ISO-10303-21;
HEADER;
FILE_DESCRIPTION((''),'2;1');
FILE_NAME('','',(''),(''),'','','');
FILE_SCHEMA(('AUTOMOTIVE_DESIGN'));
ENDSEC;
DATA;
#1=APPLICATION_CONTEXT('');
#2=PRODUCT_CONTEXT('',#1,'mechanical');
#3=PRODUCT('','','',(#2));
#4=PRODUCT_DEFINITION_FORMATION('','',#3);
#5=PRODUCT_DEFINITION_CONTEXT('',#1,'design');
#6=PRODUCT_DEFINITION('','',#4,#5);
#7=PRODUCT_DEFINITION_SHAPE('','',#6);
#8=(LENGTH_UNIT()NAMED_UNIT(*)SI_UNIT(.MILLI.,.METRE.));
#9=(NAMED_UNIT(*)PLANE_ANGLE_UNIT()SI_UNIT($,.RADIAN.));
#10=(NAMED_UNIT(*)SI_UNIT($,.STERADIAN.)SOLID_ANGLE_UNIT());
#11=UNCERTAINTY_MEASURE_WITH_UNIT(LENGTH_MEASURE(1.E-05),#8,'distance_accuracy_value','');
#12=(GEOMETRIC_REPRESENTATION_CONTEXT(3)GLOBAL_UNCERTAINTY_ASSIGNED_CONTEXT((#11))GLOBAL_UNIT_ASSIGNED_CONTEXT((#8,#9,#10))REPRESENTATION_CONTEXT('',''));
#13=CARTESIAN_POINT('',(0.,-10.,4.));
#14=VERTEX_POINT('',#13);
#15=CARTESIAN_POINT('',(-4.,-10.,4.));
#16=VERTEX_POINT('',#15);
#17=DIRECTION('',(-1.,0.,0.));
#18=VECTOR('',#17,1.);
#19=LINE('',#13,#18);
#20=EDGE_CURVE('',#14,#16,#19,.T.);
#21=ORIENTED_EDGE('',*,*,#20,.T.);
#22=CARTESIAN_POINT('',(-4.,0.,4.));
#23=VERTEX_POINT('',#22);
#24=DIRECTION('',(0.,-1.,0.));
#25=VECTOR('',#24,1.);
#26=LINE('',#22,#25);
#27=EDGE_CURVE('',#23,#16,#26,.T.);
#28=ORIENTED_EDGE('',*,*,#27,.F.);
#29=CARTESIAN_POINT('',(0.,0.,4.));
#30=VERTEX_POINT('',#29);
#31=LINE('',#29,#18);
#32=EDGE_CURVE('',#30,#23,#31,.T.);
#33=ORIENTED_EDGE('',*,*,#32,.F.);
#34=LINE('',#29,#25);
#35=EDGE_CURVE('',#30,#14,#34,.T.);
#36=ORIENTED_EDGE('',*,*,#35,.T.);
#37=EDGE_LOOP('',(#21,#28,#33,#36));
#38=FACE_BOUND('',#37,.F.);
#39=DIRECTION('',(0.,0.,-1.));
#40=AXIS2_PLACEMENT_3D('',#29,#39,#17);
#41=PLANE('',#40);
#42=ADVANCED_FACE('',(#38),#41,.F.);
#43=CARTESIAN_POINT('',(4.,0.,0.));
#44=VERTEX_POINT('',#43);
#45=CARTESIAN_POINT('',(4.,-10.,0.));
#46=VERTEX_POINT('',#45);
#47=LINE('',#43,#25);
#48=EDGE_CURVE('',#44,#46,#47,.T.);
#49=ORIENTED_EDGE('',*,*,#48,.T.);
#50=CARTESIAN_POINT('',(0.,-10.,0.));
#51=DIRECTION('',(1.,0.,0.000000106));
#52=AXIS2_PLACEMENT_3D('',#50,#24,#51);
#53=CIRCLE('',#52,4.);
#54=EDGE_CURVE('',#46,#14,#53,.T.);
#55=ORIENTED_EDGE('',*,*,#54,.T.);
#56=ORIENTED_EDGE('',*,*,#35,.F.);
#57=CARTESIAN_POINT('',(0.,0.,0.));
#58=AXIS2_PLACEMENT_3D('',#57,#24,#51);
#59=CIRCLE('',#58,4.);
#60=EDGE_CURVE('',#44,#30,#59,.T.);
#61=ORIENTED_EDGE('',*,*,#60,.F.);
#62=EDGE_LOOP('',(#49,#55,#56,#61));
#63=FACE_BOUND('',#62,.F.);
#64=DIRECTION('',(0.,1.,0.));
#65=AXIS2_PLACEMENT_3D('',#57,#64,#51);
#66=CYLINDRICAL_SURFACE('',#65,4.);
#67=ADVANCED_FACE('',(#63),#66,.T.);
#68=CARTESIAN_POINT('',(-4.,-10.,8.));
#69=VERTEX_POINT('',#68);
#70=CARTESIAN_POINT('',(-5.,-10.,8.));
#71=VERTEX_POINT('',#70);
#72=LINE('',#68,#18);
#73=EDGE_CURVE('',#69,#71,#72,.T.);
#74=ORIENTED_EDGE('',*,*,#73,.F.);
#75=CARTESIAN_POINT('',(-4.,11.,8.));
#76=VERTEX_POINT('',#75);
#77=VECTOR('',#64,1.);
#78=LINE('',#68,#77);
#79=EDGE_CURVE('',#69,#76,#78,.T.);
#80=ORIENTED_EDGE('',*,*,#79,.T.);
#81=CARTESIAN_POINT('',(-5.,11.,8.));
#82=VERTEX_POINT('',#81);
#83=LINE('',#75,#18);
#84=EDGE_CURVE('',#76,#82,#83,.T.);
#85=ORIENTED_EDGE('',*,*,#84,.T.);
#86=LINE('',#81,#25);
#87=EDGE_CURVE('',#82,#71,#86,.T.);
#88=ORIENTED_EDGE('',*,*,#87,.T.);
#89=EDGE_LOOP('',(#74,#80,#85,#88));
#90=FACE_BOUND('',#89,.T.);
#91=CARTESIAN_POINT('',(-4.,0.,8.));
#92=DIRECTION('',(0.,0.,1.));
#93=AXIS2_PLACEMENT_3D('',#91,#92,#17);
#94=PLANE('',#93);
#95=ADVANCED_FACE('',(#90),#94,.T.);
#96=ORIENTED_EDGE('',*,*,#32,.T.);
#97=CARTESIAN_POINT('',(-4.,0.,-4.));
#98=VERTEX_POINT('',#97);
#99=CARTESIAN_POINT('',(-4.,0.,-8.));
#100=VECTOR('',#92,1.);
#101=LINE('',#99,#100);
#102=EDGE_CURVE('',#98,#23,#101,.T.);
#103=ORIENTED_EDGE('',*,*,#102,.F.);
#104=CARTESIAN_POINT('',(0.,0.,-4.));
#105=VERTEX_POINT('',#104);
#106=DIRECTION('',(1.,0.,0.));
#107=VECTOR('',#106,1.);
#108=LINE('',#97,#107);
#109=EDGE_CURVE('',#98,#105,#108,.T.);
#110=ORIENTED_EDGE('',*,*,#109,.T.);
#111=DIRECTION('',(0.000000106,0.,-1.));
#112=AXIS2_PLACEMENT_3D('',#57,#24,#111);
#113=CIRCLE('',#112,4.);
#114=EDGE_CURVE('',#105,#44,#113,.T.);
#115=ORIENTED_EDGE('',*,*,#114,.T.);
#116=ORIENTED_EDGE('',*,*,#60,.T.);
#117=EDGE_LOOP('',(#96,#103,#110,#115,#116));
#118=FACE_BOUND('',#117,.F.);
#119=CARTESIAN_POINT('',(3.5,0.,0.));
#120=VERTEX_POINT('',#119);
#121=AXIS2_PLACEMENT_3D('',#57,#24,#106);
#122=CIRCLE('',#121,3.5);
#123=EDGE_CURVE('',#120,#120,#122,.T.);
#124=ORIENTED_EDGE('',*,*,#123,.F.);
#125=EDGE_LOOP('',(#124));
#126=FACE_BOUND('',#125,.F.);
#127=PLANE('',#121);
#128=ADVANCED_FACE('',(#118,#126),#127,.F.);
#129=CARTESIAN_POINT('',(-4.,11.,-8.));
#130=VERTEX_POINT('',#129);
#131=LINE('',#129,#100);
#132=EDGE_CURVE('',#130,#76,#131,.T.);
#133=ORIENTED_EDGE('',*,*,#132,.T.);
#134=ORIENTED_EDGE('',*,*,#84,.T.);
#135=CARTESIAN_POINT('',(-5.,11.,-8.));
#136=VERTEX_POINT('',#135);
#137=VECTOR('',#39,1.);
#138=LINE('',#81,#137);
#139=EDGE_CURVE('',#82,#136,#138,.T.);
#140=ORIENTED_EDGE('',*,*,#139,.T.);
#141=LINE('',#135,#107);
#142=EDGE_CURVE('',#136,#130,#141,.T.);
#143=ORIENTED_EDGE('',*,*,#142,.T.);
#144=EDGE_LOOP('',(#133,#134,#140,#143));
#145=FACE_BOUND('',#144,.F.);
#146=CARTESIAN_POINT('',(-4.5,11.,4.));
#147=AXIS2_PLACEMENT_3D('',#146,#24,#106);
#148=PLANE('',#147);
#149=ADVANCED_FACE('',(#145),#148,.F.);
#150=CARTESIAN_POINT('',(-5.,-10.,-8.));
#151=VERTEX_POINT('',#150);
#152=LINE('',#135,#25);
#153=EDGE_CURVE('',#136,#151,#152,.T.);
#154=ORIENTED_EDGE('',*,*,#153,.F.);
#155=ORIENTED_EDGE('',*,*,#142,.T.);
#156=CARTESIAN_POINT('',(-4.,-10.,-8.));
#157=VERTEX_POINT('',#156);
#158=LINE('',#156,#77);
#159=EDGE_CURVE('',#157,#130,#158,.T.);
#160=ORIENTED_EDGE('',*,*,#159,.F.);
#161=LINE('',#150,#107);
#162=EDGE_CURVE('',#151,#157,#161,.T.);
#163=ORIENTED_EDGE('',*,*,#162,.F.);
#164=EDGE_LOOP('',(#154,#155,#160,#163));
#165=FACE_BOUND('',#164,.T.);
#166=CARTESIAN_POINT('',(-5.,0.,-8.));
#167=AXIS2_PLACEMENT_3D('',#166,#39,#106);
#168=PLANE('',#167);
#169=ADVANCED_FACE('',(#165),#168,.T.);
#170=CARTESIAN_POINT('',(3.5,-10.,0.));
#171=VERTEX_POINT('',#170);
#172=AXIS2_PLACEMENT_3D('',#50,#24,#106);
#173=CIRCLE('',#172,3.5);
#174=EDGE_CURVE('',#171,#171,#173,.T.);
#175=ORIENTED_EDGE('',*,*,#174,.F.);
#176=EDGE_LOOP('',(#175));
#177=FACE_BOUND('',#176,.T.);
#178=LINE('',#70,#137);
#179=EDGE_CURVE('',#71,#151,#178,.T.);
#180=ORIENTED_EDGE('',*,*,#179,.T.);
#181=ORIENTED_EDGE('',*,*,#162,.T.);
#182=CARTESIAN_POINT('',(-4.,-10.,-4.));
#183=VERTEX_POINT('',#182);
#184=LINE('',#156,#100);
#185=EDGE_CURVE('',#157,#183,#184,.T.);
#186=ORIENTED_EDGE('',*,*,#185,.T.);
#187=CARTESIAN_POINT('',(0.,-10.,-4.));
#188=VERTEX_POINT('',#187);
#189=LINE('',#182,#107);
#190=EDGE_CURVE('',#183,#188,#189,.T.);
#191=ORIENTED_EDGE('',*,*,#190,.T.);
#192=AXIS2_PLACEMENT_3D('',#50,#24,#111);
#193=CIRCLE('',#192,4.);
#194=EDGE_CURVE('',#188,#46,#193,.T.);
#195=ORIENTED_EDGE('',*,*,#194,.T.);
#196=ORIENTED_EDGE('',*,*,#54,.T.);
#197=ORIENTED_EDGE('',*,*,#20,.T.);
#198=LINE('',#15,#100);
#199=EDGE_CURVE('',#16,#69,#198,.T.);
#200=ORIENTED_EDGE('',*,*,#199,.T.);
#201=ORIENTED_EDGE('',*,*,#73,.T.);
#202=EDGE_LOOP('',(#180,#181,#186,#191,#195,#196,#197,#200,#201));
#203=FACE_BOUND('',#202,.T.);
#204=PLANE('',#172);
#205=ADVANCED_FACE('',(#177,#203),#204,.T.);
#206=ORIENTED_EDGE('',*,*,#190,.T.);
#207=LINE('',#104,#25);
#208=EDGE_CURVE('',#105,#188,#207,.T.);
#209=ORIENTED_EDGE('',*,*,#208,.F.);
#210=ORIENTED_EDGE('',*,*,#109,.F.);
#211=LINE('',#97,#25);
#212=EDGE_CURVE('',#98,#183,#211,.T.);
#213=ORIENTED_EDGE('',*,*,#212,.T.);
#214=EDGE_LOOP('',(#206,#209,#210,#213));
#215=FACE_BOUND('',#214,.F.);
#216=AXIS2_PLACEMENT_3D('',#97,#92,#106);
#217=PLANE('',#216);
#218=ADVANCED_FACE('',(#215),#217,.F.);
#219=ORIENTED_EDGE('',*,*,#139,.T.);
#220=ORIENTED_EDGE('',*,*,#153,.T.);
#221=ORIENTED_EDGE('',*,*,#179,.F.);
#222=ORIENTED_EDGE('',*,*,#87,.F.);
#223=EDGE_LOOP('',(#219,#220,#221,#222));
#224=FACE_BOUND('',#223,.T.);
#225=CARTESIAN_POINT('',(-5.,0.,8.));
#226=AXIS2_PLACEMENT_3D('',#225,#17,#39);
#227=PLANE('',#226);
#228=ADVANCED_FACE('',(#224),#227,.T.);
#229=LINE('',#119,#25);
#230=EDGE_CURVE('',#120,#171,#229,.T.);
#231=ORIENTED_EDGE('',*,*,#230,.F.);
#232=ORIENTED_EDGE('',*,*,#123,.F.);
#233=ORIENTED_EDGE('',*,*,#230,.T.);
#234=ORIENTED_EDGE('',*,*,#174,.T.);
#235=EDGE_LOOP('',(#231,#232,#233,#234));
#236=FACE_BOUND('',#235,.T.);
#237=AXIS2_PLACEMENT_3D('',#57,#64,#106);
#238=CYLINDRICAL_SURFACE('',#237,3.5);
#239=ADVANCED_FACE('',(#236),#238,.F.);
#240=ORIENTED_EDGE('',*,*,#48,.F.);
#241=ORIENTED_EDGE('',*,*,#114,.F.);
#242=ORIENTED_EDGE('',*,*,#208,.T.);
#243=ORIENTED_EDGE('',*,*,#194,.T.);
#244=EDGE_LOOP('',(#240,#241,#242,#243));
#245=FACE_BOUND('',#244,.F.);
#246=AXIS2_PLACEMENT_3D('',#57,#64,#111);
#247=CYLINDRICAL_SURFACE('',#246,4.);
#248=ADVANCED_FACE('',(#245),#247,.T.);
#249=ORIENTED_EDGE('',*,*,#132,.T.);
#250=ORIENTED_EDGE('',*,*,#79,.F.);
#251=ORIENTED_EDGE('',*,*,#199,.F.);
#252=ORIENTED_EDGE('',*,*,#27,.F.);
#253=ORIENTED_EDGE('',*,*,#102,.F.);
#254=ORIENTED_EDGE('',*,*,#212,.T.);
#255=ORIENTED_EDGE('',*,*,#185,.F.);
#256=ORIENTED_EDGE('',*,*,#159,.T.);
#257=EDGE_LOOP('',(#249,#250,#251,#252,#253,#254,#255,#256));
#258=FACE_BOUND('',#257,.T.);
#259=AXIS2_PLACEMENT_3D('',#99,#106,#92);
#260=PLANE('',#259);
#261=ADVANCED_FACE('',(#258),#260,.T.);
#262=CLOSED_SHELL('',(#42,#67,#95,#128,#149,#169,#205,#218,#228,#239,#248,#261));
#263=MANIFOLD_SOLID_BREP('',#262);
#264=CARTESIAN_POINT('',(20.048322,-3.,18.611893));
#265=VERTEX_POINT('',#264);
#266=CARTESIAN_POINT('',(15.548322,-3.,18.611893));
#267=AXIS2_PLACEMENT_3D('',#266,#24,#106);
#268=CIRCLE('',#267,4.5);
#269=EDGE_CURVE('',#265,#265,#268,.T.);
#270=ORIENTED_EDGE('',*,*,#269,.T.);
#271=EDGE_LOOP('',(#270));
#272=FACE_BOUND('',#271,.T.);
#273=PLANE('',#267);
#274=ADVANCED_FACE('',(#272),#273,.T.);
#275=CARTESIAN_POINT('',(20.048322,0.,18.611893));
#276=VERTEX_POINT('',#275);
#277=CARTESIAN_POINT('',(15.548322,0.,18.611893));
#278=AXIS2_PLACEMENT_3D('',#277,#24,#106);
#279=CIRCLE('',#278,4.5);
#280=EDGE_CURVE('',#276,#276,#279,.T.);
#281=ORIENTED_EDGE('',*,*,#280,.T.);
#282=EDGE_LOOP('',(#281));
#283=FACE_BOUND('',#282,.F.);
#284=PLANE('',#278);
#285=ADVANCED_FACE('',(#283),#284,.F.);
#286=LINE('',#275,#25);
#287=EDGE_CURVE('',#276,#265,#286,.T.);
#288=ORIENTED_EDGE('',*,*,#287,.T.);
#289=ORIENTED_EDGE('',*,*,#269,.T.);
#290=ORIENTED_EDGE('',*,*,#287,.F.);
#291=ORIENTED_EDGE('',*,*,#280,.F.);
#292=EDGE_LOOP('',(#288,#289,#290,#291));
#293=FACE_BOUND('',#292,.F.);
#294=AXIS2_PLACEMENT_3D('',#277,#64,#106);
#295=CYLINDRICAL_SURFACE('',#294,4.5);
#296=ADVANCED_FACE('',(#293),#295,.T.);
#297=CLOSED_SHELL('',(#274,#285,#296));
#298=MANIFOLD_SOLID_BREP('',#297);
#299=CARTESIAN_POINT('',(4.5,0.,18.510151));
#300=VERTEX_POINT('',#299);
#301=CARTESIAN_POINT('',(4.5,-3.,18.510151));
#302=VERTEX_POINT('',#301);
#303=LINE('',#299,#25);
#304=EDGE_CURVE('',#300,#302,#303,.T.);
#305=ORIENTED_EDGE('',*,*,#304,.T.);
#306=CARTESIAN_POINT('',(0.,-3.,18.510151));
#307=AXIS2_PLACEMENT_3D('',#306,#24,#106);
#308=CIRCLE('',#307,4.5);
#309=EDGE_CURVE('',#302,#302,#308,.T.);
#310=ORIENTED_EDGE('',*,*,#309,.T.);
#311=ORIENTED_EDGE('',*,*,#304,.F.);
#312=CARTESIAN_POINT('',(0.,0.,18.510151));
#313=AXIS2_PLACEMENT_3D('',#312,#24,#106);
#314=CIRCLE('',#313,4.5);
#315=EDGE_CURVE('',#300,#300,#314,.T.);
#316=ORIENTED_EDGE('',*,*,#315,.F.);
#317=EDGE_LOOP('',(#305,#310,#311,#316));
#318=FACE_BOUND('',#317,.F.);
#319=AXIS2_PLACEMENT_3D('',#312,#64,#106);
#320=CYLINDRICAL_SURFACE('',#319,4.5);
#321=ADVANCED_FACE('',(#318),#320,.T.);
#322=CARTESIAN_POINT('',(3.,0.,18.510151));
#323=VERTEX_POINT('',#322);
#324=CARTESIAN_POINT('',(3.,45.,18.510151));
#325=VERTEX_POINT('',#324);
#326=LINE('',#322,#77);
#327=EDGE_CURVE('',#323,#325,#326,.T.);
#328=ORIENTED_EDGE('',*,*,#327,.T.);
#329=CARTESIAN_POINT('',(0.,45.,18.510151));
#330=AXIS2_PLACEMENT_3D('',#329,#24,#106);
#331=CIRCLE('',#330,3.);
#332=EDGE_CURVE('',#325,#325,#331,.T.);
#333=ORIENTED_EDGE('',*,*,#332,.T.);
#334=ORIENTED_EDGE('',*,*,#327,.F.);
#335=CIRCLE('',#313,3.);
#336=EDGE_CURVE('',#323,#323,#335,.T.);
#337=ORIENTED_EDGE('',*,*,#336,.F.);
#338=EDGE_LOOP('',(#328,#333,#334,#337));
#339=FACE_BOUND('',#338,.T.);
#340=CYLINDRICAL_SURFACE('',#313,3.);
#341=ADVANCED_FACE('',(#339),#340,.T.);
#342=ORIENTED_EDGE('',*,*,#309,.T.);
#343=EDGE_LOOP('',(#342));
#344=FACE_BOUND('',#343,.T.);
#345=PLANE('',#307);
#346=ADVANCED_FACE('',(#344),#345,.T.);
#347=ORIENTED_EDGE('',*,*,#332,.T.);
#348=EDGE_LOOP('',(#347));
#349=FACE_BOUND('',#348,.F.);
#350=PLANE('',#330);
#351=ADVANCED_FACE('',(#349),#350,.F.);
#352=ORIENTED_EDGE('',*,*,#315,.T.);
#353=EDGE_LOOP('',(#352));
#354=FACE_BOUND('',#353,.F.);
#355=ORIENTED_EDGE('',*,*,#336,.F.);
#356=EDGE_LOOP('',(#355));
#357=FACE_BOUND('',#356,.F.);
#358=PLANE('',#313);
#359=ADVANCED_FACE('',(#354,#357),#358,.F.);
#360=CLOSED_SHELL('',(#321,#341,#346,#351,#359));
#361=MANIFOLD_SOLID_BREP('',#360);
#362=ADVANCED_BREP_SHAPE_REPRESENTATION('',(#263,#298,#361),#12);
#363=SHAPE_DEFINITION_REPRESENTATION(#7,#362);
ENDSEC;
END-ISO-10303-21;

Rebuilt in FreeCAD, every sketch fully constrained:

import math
import FreeCAD as App
import Part
import Sketcher
from FreeCAD import Vector
Q = App.Units.Quantity

doc = App.newDocument("Part")
body = doc.addObject("PartDesign::Body", "Body")

# Sketch on XZ plane
sketch1 = body.newObject("Sketcher::SketchObject", "Sketch")
sketch1.AttachmentSupport = (doc.getObject("XZ_Plane"), [""])
sketch1.MapMode = "FlatFace"
sketch1.addGeometry([
    Part.ArcOfCircle(Part.Circle(Vector(0, 0, 0), Vector(0, 0, 1), 4), math.radians(-89.999994), math.radians(-0.000006)),  # 0
    Part.ArcOfCircle(Part.Circle(Vector(0, 0, 0), Vector(0, 0, 1), 4), math.radians(0.000006), math.radians(89.999994)),  # 1
    Part.LineSegment(Vector(0, 4, 0), Vector(-4, 4, 0)),  # 2
    Part.LineSegment(Vector(-4, 4, 0), Vector(-4, 8, 0)),  # 3
    Part.LineSegment(Vector(-4, 8, 0), Vector(-5, 8, 0)),  # 4
    Part.LineSegment(Vector(-5, 8, 0), Vector(-5, -8, 0)),  # 5
    Part.LineSegment(Vector(-5, -8, 0), Vector(-4, -8, 0)),  # 6
    Part.LineSegment(Vector(-4, -8, 0), Vector(-4, -4, 0)),  # 7
    Part.LineSegment(Vector(-4, -4, 0), Vector(0, -4, 0)),  # 8
    Part.Circle(Vector(0, 0, 0), Vector(0, 0, 1), 3.5),  # 9
], False)
sketch1.addConstraint([
    Sketcher.Constraint("Tangent", 0, 2, 1, 1),
    Sketcher.Constraint("Tangent", 1, 2, 2, 1),
    Sketcher.Constraint("Coincident", 2, 2, 3, 1),
    Sketcher.Constraint("Coincident", 3, 2, 4, 1),
    Sketcher.Constraint("Coincident", 4, 2, 5, 1),
    Sketcher.Constraint("Coincident", 5, 2, 6, 1),
    Sketcher.Constraint("Coincident", 6, 2, 7, 1),
    Sketcher.Constraint("Coincident", 7, 2, 8, 1),
    Sketcher.Constraint("Tangent", 8, 2, 0, 1),
    Sketcher.Constraint("Horizontal", 2),
    Sketcher.Constraint("Vertical", 3),
    Sketcher.Constraint("Horizontal", 4),
    Sketcher.Constraint("Vertical", 5),
    Sketcher.Constraint("Horizontal", 6),
    Sketcher.Constraint("Vertical", 7),
    Sketcher.Constraint("Horizontal", 8),
    Sketcher.Constraint("Coincident", 0, 3, -1, 1),
    Sketcher.Constraint("Coincident", 9, 3, -1, 1),
    Sketcher.Constraint("Equal", 0, 1),
    Sketcher.Constraint("Symmetric", 3, 2, 6, 2, -1),
    Sketcher.Constraint("PointOnObject", 0, 2, -1),
    Sketcher.Constraint("Equal", 8, 3),
    Sketcher.Constraint("Diameter", 9, Q("7 mm")),
    Sketcher.Constraint("Radius", 0, Q("4 mm")),
    Sketcher.Constraint("DistanceX", 2, 2, 2, 1, Q("4 mm")),
    Sketcher.Constraint("DistanceX", 4, 2, 4, 1, Q("1 mm")),
])
pad1 = body.newObject("PartDesign::Pad", "Pad")
pad1.Profile = sketch1
pad1.Length = 10

# Sketch on XZ plane
sketch2 = body.newObject("Sketcher::SketchObject", "Sketch001")
sketch2.AttachmentSupport = (doc.getObject("XZ_Plane"), [""])
sketch2.MapMode = "FlatFace"
sketch2.addGeometry([
    Part.LineSegment(Vector(-4, 8, 0), Vector(-5, 8, 0)),
    Part.LineSegment(Vector(-5, 8, 0), Vector(-5, -8, 0)),
    Part.LineSegment(Vector(-5, -8, 0), Vector(-4, -8, 0)),
    Part.LineSegment(Vector(-4, -8, 0), Vector(-4, 8, 0)),
], False)
sketch2.addConstraint([
    Sketcher.Constraint("Coincident", 0, 2, 1, 1),
    Sketcher.Constraint("Coincident", 1, 2, 2, 1),
    Sketcher.Constraint("Coincident", 2, 2, 3, 1),
    Sketcher.Constraint("Coincident", 3, 2, 0, 1),
    Sketcher.Constraint("Horizontal", 0),
    Sketcher.Constraint("Vertical", 1),
    Sketcher.Constraint("Horizontal", 2),
    Sketcher.Constraint("Vertical", 3),
    Sketcher.Constraint("DistanceX", 0, 2, 0, 1, Q("1 mm")),
    Sketcher.Constraint("DistanceY", 1, 2, 1, 1, Q("16 mm")),
    Sketcher.Constraint("DistanceX", 0, 2, -1, 1, Q("5 mm")),
    Sketcher.Constraint("DistanceY", -1, 1, 0, 2, Q("8 mm")),
])
pad2 = body.newObject("PartDesign::Pad", "Pad001")
pad2.Profile = sketch2
pad2.Length = 11
pad2.Reversed = True
body2 = doc.addObject("PartDesign::Body", "Body001")
body2.AllowCompound = True

# Sketch on XZ plane
sketch3 = body2.newObject("Sketcher::SketchObject", "Sketch002")
sketch3.AttachmentSupport = (doc.getObject("XZ_Plane001"), [""])
sketch3.MapMode = "FlatFace"
sketch3.addGeometry([
    Part.Circle(Vector(0, 18.510151, 0), Vector(0, 0, 1), 4.5),
    Part.Circle(Vector(15.548322, 18.611893, 0), Vector(0, 0, 1), 4.5),
], False)
sketch3.addConstraint([
    Sketcher.Constraint("Equal", 0, 1),
    Sketcher.Constraint("PointOnObject", 0, 3, -2),
    Sketcher.Constraint("Diameter", 0, Q("9 mm")),
    Sketcher.Constraint("DistanceY", -1, 1, 0, 3, Q("18.510151 mm")),
    Sketcher.Constraint("DistanceY", 0, 3, 1, 3, Q("0.101742 mm")),
    Sketcher.Constraint("DistanceX", -1, 1, 1, 3, Q("15.548322 mm")),
])
pad3 = body2.newObject("PartDesign::Pad", "Pad002")
pad3.Profile = sketch3
pad3.Length = 3

# Sketch on XZ plane
sketch4 = body2.newObject("Sketcher::SketchObject", "Sketch003")
sketch4.AttachmentSupport = (doc.getObject("XZ_Plane001"), [""])
sketch4.MapMode = "FlatFace"
sketch4.addGeometry(Part.Circle(Vector(0, 18.510151, 0), Vector(0, 0, 1), 3), False)
sketch4.addConstraint([
    Sketcher.Constraint("PointOnObject", 0, 3, -2),
    Sketcher.Constraint("Diameter", 0, Q("6 mm")),
    Sketcher.Constraint("DistanceY", -1, 1, 0, 3, Q("18.510151 mm")),
])
pad4 = body2.newObject("PartDesign::Pad", "Pad003")
pad4.Profile = sketch4
pad4.Length = 45
pad4.Reversed = True

doc.recompute()
